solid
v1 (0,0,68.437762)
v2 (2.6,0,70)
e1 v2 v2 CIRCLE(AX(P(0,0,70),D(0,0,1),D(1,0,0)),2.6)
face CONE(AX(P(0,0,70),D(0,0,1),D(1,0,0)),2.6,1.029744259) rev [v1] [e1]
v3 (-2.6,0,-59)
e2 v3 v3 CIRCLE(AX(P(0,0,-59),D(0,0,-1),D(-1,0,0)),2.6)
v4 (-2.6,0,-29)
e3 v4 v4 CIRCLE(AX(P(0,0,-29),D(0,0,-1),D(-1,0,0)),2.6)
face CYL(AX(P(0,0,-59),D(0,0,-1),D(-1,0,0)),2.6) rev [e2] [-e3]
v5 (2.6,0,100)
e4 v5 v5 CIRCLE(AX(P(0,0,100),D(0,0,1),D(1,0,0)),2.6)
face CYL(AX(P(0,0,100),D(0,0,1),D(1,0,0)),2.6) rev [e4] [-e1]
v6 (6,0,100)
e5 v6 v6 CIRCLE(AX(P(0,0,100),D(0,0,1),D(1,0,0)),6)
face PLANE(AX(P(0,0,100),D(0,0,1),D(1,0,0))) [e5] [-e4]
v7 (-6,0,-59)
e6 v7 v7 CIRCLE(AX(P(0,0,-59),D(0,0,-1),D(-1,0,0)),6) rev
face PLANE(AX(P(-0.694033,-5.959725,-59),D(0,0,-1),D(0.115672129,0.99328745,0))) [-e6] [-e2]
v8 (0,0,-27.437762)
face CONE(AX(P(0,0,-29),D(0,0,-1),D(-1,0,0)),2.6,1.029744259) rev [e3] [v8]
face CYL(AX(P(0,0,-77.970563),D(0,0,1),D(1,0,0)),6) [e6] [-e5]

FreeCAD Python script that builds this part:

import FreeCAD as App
import Part
import Sketcher
from FreeCAD import Vector
Q = App.Units.Quantity

doc = App.newDocument("Part")
body = doc.addObject("PartDesign::Body", "Body")

sketch1 = body.newObject("Sketcher::SketchObject", "Sketch")
sketch1.AttachmentSupport = (doc.getObject("XY_Plane"), [""])
sketch1.MapMode = "FlatFace"
sketch1.addGeometry(Part.Circle(Vector(0, 0, 0), Vector(0, 0, 1), 6), False)
sketch1.addConstraint([
    Sketcher.Constraint("Coincident", 0, 3, -1, 1),
    Sketcher.Constraint("Diameter", 0, Q("12 mm")),
])
pad1 = body.newObject("PartDesign::Pad", "Pad")
pad1.Profile = sketch1
pad1.Type = "TwoLengths"
pad1.Length = 100
pad1.Length2 = 59

sketch2 = body.newObject("Sketcher::SketchObject", "Sketch001")
sketch2.AttachmentSupport = (doc.getObject("XY_Plane"), [""])
sketch2.MapMode = "FlatFace"
sketch2.AttachmentOffset = App.Placement(Vector(0, 0, 100), App.Rotation())
sketch2.addGeometry(Part.Circle(Vector(0, 0, 0), Vector(0, 0, 1), 2.6), False)
sketch2.addConstraint([
    Sketcher.Constraint("Coincident", 0, 3, -1, 1),
    Sketcher.Constraint("Diameter", 0, Q("5.2 mm")),
])
doc.recompute()
hole = body.newObject("PartDesign::Hole", "Hole")
hole.Profile = sketch2
hole.ThreadType = "None"
hole.Diameter = 5.2
hole.DepthType = "Dimension"
hole.Depth = 30
hole.DrillPoint = "Angled"
hole.DrillPointAngle = 118

sketch3 = body.newObject("Sketcher::SketchObject", "Sketch002")
sketch3.AttachmentSupport = (doc.getObject("XY_Plane"), [""])
sketch3.MapMode = "FlatFace"
sketch3.AttachmentOffset = App.Placement(Vector(0, 0, -59), App.Rotation())
sketch3.addGeometry(Part.Circle(Vector(0, 0, 0), Vector(0, 0, 1), 2.6), False)
sketch3.addConstraint([
    Sketcher.Constraint("Coincident", 0, 3, -1, 1),
    Sketcher.Constraint("Diameter", 0, Q("5.2 mm")),
])
doc.recompute()
hole2 = body.newObject("PartDesign::Hole", "Hole001")
hole2.Profile = sketch3
hole2.ThreadType = "None"
hole2.Diameter = 5.2
hole2.DepthType = "Dimension"
hole2.Depth = 30
hole2.DrillPoint = "Angled"
hole2.DrillPointAngle = 118
hole2.Reversed = True

doc.recompute()
